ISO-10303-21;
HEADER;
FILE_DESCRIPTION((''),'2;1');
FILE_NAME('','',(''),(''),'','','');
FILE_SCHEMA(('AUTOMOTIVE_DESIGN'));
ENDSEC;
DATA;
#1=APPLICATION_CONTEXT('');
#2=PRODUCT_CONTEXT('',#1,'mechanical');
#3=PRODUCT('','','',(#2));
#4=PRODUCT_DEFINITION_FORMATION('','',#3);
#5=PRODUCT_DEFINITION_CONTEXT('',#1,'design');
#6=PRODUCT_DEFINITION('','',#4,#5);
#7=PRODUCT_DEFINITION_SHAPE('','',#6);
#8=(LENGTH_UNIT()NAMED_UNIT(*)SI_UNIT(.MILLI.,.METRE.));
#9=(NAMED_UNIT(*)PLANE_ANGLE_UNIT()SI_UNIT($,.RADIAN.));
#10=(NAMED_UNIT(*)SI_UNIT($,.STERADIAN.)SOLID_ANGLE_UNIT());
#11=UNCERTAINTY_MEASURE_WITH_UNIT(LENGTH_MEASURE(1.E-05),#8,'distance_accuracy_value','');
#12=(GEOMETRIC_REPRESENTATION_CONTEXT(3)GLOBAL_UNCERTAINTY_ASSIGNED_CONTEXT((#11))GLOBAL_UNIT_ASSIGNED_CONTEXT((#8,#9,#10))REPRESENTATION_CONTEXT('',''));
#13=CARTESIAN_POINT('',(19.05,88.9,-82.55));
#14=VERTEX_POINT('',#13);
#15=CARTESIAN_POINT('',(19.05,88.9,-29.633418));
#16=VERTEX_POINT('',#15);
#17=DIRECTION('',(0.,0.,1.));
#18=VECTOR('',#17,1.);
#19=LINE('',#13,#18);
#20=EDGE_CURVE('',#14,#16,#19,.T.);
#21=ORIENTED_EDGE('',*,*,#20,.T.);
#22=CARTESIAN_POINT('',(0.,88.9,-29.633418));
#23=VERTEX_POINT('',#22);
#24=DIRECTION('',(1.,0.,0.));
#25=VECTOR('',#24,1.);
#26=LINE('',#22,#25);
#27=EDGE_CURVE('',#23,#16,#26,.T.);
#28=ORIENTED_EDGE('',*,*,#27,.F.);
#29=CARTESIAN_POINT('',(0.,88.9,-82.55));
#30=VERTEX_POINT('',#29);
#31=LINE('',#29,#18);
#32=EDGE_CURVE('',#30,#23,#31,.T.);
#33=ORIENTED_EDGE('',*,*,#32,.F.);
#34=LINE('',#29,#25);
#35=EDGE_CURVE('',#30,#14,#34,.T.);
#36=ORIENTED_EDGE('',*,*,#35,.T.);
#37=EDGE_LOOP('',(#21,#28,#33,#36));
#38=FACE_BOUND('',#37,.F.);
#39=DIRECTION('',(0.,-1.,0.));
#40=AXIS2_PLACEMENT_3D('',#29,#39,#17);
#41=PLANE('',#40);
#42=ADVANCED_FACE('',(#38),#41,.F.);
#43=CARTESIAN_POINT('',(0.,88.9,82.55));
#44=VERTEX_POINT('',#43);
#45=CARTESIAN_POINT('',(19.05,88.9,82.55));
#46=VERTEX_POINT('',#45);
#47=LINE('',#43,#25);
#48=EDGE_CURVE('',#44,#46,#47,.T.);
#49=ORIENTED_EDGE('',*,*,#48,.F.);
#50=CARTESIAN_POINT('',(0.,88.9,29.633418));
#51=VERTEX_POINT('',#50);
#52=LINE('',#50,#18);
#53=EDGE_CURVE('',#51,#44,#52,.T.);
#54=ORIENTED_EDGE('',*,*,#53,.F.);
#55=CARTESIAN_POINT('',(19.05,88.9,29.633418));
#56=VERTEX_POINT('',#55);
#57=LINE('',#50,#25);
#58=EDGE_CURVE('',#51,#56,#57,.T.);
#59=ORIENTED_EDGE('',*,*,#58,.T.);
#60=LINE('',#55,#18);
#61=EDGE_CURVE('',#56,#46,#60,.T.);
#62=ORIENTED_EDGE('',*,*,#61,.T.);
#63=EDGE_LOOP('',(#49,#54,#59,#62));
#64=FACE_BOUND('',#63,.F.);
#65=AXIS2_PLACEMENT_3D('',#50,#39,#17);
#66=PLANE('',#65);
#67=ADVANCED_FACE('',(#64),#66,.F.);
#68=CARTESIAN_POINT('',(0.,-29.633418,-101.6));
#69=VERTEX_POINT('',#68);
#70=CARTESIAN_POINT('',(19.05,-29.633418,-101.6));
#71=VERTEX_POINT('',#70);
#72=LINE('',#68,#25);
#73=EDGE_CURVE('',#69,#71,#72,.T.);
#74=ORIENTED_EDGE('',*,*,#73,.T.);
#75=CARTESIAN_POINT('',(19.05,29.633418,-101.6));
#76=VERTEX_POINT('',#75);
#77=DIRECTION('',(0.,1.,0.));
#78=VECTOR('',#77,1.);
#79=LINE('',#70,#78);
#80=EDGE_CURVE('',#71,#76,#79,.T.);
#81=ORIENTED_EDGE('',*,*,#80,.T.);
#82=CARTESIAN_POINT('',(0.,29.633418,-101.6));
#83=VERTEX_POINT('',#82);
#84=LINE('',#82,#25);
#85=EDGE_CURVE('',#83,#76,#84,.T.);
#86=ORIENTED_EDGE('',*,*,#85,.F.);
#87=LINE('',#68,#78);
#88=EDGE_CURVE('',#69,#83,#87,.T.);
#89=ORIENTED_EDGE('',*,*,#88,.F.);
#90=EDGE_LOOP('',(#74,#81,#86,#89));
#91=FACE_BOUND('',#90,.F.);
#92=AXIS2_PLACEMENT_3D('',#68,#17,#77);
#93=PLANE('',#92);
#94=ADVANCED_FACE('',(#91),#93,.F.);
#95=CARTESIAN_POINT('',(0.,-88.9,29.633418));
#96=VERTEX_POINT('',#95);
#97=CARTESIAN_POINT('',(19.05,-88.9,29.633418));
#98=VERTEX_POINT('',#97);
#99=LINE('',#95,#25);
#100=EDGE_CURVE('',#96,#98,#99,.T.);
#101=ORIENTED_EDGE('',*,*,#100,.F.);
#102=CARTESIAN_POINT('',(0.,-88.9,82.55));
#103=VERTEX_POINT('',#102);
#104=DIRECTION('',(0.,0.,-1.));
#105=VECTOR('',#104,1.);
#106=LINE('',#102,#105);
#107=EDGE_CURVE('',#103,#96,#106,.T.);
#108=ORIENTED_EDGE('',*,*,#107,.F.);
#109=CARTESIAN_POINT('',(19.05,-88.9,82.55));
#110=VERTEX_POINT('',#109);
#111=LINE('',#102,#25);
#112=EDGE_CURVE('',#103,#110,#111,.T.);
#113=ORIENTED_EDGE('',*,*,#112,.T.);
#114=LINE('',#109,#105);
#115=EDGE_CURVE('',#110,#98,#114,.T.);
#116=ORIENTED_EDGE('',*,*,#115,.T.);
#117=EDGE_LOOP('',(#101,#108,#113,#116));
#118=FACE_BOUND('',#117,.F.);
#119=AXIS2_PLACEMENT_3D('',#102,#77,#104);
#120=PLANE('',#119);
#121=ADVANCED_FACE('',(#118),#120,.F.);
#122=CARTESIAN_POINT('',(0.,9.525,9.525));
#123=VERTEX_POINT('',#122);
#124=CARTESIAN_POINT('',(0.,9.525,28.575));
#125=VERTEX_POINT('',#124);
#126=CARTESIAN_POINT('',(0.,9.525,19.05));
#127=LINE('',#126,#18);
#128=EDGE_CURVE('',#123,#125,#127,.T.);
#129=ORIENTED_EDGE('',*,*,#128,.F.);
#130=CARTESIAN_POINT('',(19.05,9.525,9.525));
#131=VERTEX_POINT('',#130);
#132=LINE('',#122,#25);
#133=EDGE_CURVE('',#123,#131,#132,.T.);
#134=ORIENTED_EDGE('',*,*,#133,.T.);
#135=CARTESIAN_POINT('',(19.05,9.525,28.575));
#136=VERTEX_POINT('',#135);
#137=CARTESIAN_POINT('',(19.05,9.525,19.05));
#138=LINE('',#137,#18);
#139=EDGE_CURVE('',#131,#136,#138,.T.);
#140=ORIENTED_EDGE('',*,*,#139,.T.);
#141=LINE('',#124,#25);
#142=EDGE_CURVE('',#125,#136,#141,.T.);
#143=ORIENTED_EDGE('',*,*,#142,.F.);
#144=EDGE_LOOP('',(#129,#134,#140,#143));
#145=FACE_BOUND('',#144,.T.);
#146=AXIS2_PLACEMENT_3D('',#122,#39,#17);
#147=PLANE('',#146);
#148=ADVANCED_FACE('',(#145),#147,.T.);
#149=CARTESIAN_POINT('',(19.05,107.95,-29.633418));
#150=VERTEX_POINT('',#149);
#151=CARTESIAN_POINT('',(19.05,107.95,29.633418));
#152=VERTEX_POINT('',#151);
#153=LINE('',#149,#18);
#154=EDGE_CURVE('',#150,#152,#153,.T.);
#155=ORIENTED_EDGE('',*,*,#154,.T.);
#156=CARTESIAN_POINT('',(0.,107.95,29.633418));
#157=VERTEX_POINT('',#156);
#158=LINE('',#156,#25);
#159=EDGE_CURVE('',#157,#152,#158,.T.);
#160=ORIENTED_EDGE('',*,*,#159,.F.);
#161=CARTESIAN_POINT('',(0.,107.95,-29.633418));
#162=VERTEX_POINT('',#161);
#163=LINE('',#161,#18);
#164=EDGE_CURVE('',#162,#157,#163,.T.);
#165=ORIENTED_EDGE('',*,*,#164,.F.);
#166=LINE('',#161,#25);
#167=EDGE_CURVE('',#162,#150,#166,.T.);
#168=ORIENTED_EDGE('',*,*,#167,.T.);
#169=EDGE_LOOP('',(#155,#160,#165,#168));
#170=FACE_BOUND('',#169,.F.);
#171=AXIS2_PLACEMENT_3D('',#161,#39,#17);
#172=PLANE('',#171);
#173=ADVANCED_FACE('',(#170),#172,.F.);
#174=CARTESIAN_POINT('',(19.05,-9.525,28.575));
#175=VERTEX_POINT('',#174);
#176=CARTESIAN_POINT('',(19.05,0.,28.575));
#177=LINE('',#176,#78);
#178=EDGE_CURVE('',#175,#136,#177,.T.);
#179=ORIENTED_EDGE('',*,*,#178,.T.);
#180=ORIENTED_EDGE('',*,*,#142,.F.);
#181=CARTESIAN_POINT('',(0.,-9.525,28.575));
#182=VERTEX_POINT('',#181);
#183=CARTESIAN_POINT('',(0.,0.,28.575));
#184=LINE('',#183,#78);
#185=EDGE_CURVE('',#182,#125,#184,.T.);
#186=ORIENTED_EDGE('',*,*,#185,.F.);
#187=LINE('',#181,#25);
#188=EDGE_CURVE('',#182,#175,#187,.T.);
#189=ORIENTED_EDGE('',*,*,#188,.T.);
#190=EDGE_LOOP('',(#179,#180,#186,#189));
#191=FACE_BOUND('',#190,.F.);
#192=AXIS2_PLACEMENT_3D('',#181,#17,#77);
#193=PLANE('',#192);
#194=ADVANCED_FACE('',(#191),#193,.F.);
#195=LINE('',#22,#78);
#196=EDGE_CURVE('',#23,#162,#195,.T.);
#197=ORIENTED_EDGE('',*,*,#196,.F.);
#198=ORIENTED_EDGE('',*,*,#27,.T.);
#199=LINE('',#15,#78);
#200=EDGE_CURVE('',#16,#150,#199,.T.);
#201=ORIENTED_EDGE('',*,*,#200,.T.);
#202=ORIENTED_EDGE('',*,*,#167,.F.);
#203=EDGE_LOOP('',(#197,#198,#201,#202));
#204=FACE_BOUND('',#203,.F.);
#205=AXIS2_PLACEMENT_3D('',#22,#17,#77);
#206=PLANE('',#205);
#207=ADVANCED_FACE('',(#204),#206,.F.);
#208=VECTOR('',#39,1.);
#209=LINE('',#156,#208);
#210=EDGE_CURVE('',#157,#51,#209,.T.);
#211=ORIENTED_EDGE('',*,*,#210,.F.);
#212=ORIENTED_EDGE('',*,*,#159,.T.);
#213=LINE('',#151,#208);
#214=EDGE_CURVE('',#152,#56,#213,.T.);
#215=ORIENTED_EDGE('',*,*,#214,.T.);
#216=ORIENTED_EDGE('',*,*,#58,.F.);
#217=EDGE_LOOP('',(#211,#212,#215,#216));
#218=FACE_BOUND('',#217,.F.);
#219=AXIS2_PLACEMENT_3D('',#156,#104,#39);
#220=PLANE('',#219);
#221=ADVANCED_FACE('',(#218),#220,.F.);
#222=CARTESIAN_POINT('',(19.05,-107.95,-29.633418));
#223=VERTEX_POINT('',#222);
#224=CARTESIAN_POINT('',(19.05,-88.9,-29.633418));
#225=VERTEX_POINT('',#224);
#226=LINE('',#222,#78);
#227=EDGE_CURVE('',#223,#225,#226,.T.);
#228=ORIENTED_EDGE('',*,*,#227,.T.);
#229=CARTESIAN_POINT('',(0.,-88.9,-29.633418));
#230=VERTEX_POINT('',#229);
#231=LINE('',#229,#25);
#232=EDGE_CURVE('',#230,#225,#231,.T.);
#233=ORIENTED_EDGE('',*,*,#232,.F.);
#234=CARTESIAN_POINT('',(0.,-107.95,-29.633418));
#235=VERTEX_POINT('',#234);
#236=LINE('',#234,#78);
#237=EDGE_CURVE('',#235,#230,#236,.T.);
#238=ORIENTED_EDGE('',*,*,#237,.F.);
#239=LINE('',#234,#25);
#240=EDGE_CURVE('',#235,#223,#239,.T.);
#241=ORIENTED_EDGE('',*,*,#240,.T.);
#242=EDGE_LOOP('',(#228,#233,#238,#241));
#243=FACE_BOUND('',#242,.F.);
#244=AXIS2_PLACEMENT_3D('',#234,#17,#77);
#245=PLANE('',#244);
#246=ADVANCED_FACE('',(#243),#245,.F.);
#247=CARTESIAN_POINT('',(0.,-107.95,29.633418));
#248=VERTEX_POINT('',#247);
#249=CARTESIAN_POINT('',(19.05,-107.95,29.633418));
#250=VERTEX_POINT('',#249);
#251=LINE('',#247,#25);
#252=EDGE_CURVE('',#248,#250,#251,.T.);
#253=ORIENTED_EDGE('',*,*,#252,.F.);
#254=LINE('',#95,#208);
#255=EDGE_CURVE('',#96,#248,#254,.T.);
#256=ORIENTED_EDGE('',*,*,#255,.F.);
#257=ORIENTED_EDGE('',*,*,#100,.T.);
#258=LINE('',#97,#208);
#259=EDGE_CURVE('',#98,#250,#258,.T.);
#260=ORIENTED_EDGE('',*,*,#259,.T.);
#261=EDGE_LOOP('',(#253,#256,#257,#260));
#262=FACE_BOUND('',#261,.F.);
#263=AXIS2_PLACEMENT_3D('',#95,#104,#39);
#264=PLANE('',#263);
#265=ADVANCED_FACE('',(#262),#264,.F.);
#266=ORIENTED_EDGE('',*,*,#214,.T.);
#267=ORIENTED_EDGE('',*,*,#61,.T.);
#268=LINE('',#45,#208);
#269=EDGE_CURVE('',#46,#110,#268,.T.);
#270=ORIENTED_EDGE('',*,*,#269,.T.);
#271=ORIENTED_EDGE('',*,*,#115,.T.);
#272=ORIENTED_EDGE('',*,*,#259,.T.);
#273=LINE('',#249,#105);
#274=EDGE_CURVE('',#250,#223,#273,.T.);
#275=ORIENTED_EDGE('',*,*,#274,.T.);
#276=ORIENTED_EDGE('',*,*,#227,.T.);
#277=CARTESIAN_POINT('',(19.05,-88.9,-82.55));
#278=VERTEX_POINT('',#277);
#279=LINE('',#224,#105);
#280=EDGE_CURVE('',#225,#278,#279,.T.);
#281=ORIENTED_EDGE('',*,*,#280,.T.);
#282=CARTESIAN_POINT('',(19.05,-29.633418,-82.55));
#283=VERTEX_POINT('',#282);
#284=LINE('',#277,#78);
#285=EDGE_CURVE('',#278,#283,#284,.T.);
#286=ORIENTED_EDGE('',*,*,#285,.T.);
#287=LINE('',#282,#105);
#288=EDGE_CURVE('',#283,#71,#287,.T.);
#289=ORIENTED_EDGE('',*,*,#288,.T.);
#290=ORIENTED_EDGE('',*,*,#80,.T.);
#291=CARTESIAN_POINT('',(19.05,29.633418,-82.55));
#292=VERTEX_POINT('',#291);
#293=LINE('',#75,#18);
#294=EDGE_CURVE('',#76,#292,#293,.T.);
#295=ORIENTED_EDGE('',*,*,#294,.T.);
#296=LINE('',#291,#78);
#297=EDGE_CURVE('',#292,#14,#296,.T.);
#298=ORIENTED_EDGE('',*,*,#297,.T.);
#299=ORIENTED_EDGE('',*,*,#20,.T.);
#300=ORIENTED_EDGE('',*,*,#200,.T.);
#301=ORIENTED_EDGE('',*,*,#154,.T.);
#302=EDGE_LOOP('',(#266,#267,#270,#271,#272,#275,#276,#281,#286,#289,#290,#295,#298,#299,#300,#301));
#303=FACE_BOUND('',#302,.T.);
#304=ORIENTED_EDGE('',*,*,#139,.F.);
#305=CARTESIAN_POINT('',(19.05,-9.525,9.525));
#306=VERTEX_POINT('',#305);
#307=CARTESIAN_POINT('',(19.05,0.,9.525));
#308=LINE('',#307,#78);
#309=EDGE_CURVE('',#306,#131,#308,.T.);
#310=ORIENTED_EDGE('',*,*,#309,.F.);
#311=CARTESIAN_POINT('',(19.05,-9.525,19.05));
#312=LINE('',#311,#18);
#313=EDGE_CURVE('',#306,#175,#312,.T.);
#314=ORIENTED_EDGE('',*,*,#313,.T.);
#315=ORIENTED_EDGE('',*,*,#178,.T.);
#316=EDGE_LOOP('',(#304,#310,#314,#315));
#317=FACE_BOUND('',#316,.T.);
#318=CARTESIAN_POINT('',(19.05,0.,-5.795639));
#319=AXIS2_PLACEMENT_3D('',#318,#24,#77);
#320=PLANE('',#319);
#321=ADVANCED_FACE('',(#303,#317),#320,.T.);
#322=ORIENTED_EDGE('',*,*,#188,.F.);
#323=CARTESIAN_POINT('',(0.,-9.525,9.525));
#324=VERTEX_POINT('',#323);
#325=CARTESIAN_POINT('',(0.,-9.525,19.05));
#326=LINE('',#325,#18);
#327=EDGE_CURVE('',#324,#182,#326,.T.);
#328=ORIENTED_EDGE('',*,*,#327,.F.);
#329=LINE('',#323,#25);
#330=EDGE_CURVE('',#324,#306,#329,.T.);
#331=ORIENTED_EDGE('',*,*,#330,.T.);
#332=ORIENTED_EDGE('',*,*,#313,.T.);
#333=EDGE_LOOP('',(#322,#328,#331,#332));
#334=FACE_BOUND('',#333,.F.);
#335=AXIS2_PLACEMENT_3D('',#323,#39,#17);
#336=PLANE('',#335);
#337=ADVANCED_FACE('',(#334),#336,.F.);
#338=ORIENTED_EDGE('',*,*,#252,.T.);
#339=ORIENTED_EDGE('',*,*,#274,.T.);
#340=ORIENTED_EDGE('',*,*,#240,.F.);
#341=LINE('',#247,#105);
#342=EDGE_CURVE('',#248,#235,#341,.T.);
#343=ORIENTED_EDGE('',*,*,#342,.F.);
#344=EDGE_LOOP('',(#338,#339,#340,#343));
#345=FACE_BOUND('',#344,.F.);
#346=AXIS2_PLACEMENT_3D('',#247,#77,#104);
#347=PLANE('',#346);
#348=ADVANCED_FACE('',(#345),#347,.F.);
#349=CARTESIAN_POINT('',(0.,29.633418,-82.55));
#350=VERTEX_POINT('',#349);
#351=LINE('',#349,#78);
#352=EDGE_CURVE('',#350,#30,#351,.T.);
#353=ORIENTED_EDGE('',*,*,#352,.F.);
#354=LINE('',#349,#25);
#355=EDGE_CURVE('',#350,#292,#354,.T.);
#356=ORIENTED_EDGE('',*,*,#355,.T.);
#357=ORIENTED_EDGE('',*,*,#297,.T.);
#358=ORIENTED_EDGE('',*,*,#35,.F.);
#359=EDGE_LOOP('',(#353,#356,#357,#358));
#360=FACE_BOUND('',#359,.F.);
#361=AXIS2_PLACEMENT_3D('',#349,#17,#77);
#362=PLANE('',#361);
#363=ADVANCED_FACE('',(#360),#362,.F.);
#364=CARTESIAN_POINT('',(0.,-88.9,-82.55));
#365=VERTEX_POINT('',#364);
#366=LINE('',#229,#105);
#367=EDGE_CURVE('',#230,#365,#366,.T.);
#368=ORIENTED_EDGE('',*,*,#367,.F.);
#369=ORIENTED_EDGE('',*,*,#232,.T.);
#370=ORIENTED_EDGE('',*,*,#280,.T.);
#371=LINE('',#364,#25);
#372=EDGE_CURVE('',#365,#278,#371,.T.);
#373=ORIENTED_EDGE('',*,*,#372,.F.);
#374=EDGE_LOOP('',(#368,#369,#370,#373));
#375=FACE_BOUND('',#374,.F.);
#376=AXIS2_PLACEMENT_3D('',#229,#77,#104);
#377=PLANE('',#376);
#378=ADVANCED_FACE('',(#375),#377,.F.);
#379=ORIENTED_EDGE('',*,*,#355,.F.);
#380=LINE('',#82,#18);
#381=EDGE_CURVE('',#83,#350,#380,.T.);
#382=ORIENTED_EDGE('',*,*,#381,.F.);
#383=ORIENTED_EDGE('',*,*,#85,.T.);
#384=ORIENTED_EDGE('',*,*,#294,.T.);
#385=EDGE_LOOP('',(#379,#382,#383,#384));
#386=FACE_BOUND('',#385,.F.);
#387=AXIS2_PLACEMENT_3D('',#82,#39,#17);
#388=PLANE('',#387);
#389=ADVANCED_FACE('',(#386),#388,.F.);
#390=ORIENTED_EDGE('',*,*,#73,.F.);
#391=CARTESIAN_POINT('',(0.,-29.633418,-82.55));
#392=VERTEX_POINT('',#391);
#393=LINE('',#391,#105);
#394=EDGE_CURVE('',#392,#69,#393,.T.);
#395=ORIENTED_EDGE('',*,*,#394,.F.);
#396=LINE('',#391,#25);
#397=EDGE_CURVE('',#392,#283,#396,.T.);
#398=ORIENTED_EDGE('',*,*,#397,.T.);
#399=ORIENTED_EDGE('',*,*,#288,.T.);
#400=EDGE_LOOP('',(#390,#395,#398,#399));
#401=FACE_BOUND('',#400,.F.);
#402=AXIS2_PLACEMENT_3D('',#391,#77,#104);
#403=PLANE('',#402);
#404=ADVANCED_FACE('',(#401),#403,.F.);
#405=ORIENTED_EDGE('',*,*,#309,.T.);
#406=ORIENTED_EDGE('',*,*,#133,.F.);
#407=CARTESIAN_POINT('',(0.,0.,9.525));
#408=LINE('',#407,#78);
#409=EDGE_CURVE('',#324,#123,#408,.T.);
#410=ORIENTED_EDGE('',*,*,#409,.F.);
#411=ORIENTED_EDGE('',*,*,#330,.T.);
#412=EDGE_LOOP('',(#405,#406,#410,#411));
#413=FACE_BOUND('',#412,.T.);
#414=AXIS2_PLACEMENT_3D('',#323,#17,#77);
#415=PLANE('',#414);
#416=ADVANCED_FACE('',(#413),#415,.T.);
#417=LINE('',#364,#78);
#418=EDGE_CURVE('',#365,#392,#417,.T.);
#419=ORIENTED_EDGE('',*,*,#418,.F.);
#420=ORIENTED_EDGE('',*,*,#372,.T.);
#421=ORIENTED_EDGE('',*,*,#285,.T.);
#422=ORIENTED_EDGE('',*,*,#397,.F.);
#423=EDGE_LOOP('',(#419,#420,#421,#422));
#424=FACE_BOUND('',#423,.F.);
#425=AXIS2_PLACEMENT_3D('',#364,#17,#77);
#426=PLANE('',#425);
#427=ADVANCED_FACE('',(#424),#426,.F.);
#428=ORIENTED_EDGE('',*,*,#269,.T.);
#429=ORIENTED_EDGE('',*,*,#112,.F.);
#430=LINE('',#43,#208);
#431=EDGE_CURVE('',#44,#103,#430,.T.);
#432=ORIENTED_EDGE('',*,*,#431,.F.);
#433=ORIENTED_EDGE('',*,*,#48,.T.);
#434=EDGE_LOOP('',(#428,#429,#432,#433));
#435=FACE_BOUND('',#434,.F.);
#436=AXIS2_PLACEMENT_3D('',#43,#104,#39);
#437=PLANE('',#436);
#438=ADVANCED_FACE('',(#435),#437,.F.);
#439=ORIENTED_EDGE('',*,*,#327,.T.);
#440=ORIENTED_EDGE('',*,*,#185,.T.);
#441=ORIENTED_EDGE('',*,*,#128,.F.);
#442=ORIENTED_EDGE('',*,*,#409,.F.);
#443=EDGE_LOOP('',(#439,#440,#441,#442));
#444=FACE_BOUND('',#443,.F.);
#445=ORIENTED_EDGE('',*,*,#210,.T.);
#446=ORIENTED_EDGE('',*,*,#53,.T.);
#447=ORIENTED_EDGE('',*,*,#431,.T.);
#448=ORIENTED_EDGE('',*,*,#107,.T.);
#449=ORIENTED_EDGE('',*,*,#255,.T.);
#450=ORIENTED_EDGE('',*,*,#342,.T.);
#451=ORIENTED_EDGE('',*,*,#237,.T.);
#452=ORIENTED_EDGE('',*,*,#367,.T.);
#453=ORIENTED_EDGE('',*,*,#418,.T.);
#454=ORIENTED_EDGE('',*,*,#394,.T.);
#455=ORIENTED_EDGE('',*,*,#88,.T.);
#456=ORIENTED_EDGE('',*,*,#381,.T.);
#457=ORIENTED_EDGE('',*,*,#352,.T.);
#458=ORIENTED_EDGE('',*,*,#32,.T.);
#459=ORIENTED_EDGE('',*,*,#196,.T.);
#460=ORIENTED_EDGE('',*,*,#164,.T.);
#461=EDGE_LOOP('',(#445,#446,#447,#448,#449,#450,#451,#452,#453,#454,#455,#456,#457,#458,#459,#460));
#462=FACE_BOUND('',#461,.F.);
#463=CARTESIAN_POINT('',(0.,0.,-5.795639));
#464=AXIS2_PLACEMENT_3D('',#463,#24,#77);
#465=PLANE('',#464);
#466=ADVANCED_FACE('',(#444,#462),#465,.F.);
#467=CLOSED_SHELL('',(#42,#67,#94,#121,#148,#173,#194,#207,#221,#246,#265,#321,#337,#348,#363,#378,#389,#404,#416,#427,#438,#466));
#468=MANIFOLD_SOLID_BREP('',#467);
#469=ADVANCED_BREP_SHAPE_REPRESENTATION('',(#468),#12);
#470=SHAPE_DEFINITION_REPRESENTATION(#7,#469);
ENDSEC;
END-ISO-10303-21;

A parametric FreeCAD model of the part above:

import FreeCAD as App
import Part
import Sketcher

V = App.Vector
Q = App.Units.Quantity


def add_polygon(sketch, points):
    """Adds a closed chain of lines whose ends are joined by coincident constraints."""
    first, n = sketch.GeometryCount, len(points)
    for a, b in zip(points, points[1:] + points[:1]):
        sketch.addGeometry(Part.LineSegment(App.Vector(*a, 0), App.Vector(*b, 0)), False)
    for i in range(n):
        sketch.addConstraint(Sketcher.Constraint("Coincident", first + i, 2, first + (i + 1) % n, 1))

doc = App.newDocument("Part")
params = doc.addObject("Spreadsheet::Sheet", "Params")
for row, (alias, value) in enumerate([
    ("sketch1_width", "7 in"),
    ("sketch1_width2", "0.75 in"),
    ("pad1_length", "0.75 in"),
], start=1):
    params.set(f"A{row}", alias)
    params.set(f"B{row}", "=" + value)
    params.setAlias(f"B{row}", alias)

body = doc.addObject("PartDesign::Body", "Body")

sketch1 = doc.addObject("Sketcher::SketchObject", "Sketch")
body.addObject(sketch1)
sketch1.AttachmentSupport = (doc.YZ_Plane, [""])
sketch1.MapMode = "FlatFace"
add_polygon(sketch1, [(88.9, 82.55), (-88.9, 82.55), (-88.9, 29.633418), (-107.95, 29.633418), (-107.95, -29.633418), (-88.9, -29.633418), (-88.9, -82.55), (-29.633418, -82.55), (-29.633418, -101.6), (29.633418, -101.6), (29.633418, -82.55), (88.9, -82.55), (88.9, -29.633418), (107.95, -29.633418), (107.95, 29.633418), (88.9, 29.633418)])
add_polygon(sketch1, [(9.525, 9.525), (-9.525, 9.525), (-9.525, 28.575), (9.525, 28.575)])
sketch1.addConstraint([
    Sketcher.Constraint("Horizontal", 0),
    Sketcher.Constraint("Vertical", 1),
    Sketcher.Constraint("Horizontal", 2),
    Sketcher.Constraint("Vertical", 3),
    Sketcher.Constraint("Horizontal", 4),
    Sketcher.Constraint("Vertical", 5),
    Sketcher.Constraint("Horizontal", 6),
    Sketcher.Constraint("Vertical", 7),
    Sketcher.Constraint("Horizontal", 8),
    Sketcher.Constraint("Vertical", 9),
    Sketcher.Constraint("Horizontal", 10),
    Sketcher.Constraint("Vertical", 11),
    Sketcher.Constraint("Horizontal", 12),
    Sketcher.Constraint("Vertical", 13),
    Sketcher.Constraint("Horizontal", 14),
    Sketcher.Constraint("Vertical", 15),
    Sketcher.Constraint("Horizontal", 16),
    Sketcher.Constraint("Vertical", 17),
    Sketcher.Constraint("Horizontal", 18),
    Sketcher.Constraint("Vertical", 19),
    Sketcher.Constraint("Symmetric", 0, 2, 10, 2, -1, 1),
    Sketcher.Constraint("Symmetric", 2, 2, 12, 2, -1, 1),
    Sketcher.Constraint("Symmetric", 4, 2, 14, 2, -1, 1),
    Sketcher.Constraint("Symmetric", 6, 2, 9, 2, -2),
    Sketcher.Constraint("Symmetric", 4, 2, 11, 2, -2),
    Sketcher.Constraint("Equal", 14, 16),
    Sketcher.Constraint("Equal", 8, 3),
    Sketcher.Constraint("Equal", 18, 7),
    Sketcher.Constraint("Equal", 9, 17),
    Sketcher.Constraint("DistanceX", 0, 2, 0, 1, Q("7 in")),
    Sketcher.Constraint("DistanceY", 7, 2, -1, 1, Q("4 in")),
    Sketcher.Constraint("DistanceX", 2, 2, 2, 1, Q("0.75 in")),
    Sketcher.Constraint("DistanceX", 16, 2, -1, 1, Q("0.375 in")),
    Sketcher.Constraint("DistanceY", -1, 1, 16, 2, Q("0.375 in")),
    Sketcher.Constraint("DistanceY", 1, 2, 1, 1, 52.916582),
])
sketch1.setExpression("Constraints[49]", "Params.sketch1_width")
sketch1.setExpression("Constraints[51]", "Params.sketch1_width2")
pad1 = doc.addObject("PartDesign::Pad", "Pad")
body.addObject(pad1)
pad1.Profile = sketch1
pad1.setExpression("Length", "Params.pad1_length")

doc.recompute()
